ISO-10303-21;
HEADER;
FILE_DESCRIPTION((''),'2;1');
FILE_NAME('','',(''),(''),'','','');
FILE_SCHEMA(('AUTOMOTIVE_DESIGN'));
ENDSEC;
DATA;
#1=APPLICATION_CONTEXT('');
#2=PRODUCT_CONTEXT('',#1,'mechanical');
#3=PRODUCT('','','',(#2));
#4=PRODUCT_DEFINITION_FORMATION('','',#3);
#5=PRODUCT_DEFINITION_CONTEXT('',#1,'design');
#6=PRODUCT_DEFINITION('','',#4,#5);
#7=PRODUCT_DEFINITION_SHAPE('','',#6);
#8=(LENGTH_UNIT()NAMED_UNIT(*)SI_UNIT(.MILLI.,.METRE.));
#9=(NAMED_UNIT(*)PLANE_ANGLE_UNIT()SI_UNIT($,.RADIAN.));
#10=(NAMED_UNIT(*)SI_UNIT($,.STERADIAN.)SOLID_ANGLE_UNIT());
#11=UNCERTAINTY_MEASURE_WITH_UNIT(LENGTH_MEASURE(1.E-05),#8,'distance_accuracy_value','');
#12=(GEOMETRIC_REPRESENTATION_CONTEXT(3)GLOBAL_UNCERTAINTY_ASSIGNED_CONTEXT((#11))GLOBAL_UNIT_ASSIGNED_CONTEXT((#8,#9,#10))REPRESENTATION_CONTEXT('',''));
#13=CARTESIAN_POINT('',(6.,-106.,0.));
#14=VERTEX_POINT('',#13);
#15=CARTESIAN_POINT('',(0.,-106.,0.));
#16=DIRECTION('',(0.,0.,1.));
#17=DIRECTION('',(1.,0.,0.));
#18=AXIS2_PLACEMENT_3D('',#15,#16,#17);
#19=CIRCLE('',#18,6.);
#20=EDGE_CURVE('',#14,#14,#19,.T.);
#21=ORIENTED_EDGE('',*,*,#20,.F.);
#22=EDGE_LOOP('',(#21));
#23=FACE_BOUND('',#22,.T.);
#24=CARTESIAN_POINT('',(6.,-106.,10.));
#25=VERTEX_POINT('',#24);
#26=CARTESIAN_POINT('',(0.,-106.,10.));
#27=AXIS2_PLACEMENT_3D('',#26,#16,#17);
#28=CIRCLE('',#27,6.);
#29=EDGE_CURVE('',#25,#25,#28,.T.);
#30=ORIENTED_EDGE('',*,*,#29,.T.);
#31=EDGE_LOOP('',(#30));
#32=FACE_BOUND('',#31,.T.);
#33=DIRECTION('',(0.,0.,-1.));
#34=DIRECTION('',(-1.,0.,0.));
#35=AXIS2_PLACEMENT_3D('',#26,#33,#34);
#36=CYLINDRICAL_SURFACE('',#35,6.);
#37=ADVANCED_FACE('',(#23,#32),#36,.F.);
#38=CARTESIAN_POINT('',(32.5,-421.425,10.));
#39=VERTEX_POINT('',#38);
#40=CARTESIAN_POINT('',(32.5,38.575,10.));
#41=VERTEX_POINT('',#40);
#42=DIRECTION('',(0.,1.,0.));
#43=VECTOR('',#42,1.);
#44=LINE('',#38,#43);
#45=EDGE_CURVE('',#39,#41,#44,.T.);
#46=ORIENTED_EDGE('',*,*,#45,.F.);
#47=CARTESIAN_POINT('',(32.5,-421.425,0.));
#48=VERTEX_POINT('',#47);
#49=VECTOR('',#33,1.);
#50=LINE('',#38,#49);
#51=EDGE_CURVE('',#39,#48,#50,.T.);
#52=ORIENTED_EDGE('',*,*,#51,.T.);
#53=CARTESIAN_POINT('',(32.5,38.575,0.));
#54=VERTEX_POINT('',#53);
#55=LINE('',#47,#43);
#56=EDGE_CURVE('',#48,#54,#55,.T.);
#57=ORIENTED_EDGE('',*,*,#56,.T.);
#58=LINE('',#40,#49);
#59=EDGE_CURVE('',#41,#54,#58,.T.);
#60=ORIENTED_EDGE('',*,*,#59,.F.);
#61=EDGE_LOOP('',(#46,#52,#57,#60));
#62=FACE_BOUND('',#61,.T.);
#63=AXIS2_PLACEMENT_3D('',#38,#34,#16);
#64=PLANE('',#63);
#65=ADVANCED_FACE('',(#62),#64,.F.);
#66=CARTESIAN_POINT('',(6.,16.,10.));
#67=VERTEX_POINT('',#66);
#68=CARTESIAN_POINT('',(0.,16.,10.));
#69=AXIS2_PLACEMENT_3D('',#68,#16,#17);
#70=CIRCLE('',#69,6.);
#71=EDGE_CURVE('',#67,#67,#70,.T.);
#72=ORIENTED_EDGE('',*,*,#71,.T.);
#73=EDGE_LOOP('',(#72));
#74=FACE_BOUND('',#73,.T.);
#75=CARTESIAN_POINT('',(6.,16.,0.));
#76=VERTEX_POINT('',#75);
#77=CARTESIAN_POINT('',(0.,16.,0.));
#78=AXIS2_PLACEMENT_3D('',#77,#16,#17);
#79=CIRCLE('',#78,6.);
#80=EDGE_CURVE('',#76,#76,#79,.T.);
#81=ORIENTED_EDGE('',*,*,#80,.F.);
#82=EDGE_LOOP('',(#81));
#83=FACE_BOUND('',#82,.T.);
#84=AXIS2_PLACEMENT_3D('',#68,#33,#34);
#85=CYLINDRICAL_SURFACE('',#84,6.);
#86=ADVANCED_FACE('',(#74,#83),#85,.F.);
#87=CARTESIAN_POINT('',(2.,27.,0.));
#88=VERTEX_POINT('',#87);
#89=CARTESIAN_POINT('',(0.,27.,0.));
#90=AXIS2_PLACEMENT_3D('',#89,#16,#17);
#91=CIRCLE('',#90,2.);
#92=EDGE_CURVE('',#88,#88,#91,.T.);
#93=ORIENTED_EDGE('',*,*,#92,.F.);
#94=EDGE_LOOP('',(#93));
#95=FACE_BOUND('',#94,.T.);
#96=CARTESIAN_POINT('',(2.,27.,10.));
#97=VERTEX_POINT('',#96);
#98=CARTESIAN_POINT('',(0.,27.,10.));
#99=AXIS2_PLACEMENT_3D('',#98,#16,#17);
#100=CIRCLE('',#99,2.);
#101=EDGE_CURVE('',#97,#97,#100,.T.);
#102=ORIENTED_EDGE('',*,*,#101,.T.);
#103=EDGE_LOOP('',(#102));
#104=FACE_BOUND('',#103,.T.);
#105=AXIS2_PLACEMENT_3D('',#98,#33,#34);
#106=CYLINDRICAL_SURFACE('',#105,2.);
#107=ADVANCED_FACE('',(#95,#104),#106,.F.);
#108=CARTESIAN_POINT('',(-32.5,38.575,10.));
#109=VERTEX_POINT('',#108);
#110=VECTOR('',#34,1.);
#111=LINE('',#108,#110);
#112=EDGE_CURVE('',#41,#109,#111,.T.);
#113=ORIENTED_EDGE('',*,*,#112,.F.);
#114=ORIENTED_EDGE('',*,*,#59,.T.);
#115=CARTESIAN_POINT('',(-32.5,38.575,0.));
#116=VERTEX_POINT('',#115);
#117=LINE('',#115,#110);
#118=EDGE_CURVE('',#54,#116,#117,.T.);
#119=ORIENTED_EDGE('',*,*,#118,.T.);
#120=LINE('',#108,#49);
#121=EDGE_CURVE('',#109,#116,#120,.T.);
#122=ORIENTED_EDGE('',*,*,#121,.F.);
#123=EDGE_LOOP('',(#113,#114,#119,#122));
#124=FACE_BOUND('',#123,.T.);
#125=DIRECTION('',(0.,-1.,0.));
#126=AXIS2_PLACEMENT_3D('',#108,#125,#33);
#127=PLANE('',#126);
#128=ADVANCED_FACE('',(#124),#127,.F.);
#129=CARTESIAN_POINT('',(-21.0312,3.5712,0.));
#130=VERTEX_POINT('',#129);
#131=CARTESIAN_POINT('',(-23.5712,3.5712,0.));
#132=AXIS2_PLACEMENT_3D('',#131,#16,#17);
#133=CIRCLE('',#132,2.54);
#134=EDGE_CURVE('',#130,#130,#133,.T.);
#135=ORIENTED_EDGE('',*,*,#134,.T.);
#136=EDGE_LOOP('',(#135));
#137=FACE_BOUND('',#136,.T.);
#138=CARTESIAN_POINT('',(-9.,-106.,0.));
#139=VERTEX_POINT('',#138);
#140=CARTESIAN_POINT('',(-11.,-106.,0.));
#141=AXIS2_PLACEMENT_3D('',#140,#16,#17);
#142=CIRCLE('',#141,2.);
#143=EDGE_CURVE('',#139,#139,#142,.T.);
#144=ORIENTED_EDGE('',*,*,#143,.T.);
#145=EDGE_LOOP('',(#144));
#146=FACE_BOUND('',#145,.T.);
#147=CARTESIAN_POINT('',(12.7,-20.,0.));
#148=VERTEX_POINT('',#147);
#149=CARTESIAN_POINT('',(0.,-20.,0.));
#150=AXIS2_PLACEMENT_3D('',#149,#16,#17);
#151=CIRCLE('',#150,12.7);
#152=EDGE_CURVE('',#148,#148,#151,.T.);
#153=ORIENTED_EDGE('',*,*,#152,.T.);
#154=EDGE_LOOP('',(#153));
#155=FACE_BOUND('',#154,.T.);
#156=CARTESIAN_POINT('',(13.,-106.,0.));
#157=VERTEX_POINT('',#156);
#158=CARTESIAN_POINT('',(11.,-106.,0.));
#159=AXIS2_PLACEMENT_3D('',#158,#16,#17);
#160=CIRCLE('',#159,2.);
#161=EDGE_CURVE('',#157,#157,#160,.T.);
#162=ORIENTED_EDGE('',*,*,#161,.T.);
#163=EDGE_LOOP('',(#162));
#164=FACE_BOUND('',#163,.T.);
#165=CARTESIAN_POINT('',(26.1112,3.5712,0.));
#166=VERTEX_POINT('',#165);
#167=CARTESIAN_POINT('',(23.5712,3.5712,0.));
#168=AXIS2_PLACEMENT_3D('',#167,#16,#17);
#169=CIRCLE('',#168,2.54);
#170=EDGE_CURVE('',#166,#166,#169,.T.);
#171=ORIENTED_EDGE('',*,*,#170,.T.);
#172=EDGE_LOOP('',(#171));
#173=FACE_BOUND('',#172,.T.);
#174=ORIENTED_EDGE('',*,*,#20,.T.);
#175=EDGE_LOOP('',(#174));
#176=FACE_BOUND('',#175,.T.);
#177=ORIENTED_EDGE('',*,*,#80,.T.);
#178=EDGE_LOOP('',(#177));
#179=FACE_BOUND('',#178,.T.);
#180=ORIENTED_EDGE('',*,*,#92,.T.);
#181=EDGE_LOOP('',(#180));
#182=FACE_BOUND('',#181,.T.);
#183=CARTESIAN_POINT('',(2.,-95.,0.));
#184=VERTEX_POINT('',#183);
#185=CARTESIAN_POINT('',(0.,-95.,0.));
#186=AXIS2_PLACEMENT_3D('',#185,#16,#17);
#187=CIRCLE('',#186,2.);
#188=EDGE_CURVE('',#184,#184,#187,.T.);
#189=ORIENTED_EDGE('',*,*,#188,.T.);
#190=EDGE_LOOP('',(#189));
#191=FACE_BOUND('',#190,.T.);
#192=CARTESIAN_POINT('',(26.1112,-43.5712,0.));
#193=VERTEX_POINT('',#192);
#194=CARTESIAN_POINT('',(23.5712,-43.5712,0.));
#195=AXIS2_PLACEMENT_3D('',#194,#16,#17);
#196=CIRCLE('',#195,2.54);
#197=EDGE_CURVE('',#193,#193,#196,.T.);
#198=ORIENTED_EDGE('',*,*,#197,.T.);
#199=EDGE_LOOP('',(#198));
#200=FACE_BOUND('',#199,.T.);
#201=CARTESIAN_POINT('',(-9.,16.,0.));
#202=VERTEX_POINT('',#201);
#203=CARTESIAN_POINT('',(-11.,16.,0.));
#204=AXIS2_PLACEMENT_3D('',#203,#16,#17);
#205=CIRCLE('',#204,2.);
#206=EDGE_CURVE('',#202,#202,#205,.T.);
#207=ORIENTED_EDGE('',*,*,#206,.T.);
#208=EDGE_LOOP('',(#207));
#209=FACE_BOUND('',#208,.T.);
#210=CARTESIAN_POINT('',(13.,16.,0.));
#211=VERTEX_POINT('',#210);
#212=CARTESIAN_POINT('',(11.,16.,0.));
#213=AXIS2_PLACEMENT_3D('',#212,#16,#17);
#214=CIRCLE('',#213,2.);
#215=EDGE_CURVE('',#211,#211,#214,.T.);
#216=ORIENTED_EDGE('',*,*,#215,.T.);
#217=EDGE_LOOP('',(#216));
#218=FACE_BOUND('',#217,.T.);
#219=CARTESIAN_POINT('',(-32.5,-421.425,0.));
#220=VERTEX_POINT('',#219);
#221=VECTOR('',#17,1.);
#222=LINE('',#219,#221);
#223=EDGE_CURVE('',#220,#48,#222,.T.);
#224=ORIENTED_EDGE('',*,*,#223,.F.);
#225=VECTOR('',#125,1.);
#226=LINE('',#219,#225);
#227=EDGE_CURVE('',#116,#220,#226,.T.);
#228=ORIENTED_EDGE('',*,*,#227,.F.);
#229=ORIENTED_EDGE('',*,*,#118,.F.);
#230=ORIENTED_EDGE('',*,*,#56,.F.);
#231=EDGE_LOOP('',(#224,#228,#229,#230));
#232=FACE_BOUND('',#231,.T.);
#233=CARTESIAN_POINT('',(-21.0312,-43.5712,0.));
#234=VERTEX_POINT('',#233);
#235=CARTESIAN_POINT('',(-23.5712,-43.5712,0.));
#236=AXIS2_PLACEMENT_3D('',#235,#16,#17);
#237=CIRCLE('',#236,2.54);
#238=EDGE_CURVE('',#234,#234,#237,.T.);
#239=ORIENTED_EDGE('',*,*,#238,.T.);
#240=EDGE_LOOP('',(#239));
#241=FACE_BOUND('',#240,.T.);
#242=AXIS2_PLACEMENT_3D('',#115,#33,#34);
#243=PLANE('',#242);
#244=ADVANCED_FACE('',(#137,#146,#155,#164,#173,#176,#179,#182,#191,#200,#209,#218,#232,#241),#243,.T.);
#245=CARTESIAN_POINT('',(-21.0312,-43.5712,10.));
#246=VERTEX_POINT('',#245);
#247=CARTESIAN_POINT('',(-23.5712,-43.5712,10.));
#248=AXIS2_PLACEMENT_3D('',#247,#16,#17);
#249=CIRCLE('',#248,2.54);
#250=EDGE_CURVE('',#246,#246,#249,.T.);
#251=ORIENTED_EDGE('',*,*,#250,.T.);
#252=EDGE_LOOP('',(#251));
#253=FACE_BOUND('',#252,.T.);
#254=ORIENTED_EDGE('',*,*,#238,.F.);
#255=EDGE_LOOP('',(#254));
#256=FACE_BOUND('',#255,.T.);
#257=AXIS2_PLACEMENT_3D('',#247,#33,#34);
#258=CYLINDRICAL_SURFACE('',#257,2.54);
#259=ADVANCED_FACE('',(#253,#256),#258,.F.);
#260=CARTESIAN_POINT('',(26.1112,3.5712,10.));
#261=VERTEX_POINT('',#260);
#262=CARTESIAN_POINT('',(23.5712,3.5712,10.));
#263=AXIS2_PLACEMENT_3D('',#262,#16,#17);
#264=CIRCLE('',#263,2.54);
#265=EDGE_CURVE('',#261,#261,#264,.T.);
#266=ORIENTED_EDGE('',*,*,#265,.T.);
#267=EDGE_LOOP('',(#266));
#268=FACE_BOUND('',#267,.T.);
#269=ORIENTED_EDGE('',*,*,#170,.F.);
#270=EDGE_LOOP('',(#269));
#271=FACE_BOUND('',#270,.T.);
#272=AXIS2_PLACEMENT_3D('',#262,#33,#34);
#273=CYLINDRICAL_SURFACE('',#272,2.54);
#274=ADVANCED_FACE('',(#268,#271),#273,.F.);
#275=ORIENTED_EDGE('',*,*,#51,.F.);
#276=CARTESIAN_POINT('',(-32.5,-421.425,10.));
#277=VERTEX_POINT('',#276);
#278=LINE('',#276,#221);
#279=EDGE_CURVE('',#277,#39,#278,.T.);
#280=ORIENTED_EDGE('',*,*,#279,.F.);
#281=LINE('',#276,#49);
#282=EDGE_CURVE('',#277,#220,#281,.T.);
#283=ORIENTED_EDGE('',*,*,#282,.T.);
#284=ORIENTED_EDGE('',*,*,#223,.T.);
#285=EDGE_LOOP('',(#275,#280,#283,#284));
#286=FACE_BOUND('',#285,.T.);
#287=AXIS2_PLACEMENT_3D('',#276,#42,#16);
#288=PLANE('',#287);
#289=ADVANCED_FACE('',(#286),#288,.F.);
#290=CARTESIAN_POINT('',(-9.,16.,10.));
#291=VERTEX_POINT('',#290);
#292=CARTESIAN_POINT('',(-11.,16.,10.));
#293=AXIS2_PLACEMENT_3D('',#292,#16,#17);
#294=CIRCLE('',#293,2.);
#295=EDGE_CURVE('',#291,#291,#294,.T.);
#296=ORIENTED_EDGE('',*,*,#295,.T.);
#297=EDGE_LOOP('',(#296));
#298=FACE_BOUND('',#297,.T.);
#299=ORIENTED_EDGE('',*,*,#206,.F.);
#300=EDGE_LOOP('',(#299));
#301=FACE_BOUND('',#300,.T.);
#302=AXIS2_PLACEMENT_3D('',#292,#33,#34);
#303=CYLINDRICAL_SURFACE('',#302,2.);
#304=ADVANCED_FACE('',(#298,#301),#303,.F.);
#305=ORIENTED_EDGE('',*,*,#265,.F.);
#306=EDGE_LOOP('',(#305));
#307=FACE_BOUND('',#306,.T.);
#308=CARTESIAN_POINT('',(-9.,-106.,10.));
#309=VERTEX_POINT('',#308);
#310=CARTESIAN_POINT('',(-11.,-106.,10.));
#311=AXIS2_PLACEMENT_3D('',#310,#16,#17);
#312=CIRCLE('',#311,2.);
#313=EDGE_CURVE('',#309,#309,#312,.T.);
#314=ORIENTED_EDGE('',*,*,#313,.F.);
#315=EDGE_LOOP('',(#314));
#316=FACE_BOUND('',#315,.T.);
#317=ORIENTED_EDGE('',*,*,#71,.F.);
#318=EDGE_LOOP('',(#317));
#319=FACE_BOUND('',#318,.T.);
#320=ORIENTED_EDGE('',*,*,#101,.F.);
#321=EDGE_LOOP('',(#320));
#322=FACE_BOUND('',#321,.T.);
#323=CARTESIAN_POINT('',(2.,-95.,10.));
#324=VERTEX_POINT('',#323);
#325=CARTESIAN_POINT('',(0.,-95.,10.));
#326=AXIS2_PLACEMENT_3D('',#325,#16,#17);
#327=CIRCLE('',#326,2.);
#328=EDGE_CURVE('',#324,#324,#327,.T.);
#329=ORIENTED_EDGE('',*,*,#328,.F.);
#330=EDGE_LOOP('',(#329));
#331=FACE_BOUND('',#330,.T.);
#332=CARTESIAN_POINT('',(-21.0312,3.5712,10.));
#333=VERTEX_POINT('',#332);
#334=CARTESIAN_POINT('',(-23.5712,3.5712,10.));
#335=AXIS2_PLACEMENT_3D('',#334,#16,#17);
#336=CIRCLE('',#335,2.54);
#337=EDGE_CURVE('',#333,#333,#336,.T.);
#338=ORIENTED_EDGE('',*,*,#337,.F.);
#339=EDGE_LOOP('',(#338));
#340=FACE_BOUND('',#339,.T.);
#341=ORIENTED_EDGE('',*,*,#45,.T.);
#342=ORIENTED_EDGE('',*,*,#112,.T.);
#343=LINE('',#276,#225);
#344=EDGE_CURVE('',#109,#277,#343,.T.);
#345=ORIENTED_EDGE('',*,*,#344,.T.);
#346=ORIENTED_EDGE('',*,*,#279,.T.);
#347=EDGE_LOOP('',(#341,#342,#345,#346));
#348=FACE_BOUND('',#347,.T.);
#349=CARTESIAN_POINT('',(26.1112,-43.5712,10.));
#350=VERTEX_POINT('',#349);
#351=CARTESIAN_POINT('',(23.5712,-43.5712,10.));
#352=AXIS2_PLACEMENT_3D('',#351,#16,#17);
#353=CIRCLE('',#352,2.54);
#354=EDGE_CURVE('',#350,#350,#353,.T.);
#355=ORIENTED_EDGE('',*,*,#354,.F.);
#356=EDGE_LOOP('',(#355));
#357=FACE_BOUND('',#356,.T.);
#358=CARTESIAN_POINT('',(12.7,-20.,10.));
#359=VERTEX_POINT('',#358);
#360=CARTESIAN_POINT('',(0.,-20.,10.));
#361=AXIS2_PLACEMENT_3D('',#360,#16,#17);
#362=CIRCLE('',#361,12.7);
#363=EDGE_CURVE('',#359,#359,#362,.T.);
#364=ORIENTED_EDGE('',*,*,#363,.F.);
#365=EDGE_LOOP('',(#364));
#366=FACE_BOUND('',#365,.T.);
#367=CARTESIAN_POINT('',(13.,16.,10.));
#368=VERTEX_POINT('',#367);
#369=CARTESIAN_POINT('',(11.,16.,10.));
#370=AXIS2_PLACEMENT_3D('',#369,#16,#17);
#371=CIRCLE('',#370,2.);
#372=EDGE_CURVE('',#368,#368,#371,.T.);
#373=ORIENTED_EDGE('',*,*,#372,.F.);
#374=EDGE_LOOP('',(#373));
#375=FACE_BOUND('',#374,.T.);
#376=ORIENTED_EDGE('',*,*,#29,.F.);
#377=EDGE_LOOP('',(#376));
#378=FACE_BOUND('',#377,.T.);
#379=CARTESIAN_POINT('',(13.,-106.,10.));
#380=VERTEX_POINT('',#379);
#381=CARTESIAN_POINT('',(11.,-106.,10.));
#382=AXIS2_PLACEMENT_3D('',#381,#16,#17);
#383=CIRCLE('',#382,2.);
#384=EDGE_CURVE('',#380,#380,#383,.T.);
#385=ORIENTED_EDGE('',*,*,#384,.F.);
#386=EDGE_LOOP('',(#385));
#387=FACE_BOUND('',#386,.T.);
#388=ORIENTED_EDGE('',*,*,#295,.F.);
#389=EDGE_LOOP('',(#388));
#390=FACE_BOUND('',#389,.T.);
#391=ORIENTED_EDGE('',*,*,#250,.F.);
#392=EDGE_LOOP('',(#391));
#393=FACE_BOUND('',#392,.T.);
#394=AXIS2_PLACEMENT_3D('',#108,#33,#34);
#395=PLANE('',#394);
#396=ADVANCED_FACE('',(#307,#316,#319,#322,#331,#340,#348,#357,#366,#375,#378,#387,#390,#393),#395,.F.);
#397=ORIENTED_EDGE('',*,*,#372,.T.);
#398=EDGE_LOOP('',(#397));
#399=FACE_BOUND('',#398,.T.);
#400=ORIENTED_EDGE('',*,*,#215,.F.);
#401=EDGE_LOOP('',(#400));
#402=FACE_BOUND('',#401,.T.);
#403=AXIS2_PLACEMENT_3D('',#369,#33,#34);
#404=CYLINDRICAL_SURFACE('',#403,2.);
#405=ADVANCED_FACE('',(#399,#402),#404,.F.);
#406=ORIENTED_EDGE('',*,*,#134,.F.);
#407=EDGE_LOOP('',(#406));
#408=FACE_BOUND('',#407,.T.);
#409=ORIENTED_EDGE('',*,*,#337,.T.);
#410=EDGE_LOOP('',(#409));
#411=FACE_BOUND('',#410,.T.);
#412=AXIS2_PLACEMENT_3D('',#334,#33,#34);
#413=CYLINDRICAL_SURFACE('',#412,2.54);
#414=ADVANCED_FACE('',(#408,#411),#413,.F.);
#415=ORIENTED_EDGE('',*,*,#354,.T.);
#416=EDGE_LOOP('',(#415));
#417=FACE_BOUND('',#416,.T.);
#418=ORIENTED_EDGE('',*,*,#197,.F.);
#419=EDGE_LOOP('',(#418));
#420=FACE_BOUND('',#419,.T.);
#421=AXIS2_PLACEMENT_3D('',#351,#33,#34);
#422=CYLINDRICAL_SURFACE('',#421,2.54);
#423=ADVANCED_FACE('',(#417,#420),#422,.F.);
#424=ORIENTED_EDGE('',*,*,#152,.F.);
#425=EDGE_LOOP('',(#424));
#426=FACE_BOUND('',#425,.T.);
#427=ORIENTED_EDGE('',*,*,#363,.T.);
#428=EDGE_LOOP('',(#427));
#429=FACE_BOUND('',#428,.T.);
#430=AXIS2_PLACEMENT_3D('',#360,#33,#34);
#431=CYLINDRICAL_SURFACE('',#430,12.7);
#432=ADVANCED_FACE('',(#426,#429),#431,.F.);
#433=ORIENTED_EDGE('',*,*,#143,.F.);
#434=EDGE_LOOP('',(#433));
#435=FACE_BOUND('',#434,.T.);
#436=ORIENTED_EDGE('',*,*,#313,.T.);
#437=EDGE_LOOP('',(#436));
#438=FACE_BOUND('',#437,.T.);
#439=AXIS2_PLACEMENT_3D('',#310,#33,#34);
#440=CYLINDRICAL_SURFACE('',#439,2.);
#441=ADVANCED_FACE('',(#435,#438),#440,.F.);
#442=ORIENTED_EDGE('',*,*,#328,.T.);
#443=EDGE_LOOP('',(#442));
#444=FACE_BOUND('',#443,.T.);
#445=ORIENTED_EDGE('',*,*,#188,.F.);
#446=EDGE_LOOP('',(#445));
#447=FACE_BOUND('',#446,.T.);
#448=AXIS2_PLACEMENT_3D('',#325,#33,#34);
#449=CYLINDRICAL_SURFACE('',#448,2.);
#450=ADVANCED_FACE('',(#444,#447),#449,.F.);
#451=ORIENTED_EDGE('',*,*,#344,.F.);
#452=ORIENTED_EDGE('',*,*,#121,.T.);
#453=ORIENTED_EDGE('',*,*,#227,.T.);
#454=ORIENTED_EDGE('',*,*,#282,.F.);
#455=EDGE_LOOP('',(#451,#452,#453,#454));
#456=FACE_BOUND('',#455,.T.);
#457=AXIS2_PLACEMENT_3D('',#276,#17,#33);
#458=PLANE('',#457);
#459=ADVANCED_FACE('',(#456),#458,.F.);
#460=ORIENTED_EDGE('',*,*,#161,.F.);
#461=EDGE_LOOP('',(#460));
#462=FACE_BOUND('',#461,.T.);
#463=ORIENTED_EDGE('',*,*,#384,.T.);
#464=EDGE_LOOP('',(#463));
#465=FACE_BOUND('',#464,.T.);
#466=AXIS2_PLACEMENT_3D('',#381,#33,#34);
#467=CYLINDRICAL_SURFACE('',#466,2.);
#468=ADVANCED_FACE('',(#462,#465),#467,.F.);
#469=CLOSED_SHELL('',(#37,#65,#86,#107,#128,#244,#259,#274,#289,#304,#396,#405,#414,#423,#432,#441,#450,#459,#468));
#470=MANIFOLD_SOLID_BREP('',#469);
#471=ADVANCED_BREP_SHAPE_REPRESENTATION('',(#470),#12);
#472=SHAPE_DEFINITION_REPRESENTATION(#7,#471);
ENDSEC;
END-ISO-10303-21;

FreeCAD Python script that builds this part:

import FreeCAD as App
import Part
import Sketcher

V = App.Vector
Q = App.Units.Quantity


def add_polygon(sketch, points):
    """Adds a closed chain of lines whose ends are joined by coincident constraints."""
    first, n = sketch.GeometryCount, len(points)
    for a, b in zip(points, points[1:] + points[:1]):
        sketch.addGeometry(Part.LineSegment(App.Vector(*a, 0), App.Vector(*b, 0)), False)
    for i in range(n):
        sketch.addConstraint(Sketcher.Constraint("Coincident", first + i, 2, first + (i + 1) % n, 1))

doc = App.newDocument("Part")
body = doc.addObject("PartDesign::Body", "Body")

# Sketch on XY plane
sketch1 = body.newObject("Sketcher::SketchObject", "Sketch")
sketch1.AttachmentSupport = (doc.getObject("XY_Plane"), [""])
sketch1.MapMode = "FlatFace"
add_polygon(sketch1, [(-32.5, 38.6), (-32.5, -421.4), (32.5, -421.4), (32.5, 38.6)])  # lines 0-3
sketch1.addGeometry(Part.Circle(V(-11, -106, 0), V(0, 0, 1), 2), False)  # 4
sketch1.addGeometry(Part.Circle(V(0, -106, 0), V(0, 0, 1), 6), False)  # 5
sketch1.addGeometry(Part.Circle(V(0, -95, 0), V(0, 0, 1), 2), False)  # 6
sketch1.addGeometry(Part.Circle(V(-23.6, -43.6, 0), V(0, 0, 1), 2.5), False)  # 7
sketch1.addGeometry(Part.Circle(V(11, -106, 0), V(0, 0, 1), 2), False)  # 8
sketch1.addGeometry(Part.Circle(V(23.6, -43.6, 0), V(0, 0, 1), 2.5), False)  # 9
sketch1.addGeometry(Part.Circle(V(0, -20, 0), V(0, 0, 1), 12.7), False)  # 10
sketch1.addGeometry(Part.Circle(V(-23.6, 3.6, 0), V(0, 0, 1), 2.5), False)  # 11
sketch1.addGeometry(Part.Circle(V(-11, 16, 0), V(0, 0, 1), 2), False)  # 12
sketch1.addGeometry(Part.Circle(V(0, 16, 0), V(0, 0, 1), 6), False)  # 13
sketch1.addGeometry(Part.Circle(V(0, 27, 0), V(0, 0, 1), 2), False)  # 14
sketch1.addGeometry(Part.Circle(V(11, 16, 0), V(0, 0, 1), 2), False)  # 15
sketch1.addGeometry(Part.Circle(V(23.6, 3.6, 0), V(0, 0, 1), 2.5), False)  # 16
sketch1.addConstraint(Sketcher.Constraint("Vertical", 0))
sketch1.addConstraint(Sketcher.Constraint("Horizontal", 1))
sketch1.addConstraint(Sketcher.Constraint("Vertical", 2))
sketch1.addConstraint(Sketcher.Constraint("Horizontal", 3))
sketch1.addConstraint(Sketcher.Constraint("Equal", 4, 6))
sketch1.addConstraint(Sketcher.Constraint("Equal", 6, 8))
sketch1.addConstraint(Sketcher.Constraint("Equal", 7, 9))
sketch1.addConstraint(Sketcher.Constraint("Equal", 9, 11))
sketch1.addConstraint(Sketcher.Constraint("Equal", 8, 12))
sketch1.addConstraint(Sketcher.Constraint("Equal", 5, 13))
sketch1.addConstraint(Sketcher.Constraint("Equal", 12, 14))
sketch1.addConstraint(Sketcher.Constraint("Equal", 14, 15))
sketch1.addConstraint(Sketcher.Constraint("Equal", 11, 16))
sketch1.addConstraint(Sketcher.Constraint("Symmetric", 4, 3, 8, 3, -2))
sketch1.addConstraint(Sketcher.Constraint("Symmetric", 7, 3, 9, 3, -2))
sketch1.addConstraint(Sketcher.Constraint("Symmetric", 12, 3, 15, 3, -2))
sketch1.addConstraint(Sketcher.Constraint("Symmetric", 11, 3, 16, 3, -2))
sketch1.addConstraint(Sketcher.Constraint("PointOnObject", 5, 3, -2))
sketch1.addConstraint(Sketcher.Constraint("PointOnObject", 6, 3, -2))
sketch1.addConstraint(Sketcher.Constraint("PointOnObject", 10, 3, -2))
sketch1.addConstraint(Sketcher.Constraint("PointOnObject", 13, 3, -2))
sketch1.addConstraint(Sketcher.Constraint("PointOnObject", 14, 3, -2))
sketch1.addConstraint(Sketcher.Constraint("Horizontal", 4, 3, 5, 3))
sketch1.addConstraint(Sketcher.Constraint("Horizontal", 12, 3, 13, 3))
sketch1.addConstraint(Sketcher.Constraint("Vertical", 7, 3, 11, 3))
sketch1.addConstraint(Sketcher.Constraint("Vertical", 4, 3, 12, 3))
sketch1.addConstraint(Sketcher.Constraint("Diameter", 4, Q("4 mm")))
sketch1.addConstraint(Sketcher.Constraint("Diameter", 5, Q("12 mm")))
sketch1.addConstraint(Sketcher.Constraint("Diameter", 10, Q("25.4 mm")))
sketch1.addConstraint(Sketcher.Constraint("Diameter", 7, Q("5.08 mm")))
sketch1.addConstraint(Sketcher.Constraint("DistanceX", 1, 1, 1, 2, Q("65 mm")))
sketch1.addConstraint(Sketcher.Constraint("DistanceY", 0, 2, 0, 1, Q("460 mm")))
sketch1.addConstraint(Sketcher.Constraint("DistanceX", 4, 3, -1, 1, Q("11 mm")))
sketch1.addConstraint(Sketcher.Constraint("DistanceY", 4, 3, -1, 1, Q("106 mm")))
sketch1.addConstraint(Sketcher.Constraint("DistanceY", 6, 3, -1, 1, Q("95 mm")))
sketch1.addConstraint(Sketcher.Constraint("DistanceY", 10, 3, -1, 1, Q("20 mm")))
sketch1.addConstraint(Sketcher.Constraint("DistanceY", -1, 1, 12, 3, Q("16 mm")))
sketch1.addConstraint(Sketcher.Constraint("DistanceY", -1, 1, 14, 3, Q("27 mm")))
sketch1.addConstraint(Sketcher.Constraint("DistanceX", 0, 2, -1, 1, Q("32.5 mm")))
sketch1.addConstraint(Sketcher.Constraint("DistanceY", 0, 2, -1, 1, Q("421.425 mm")))
sketch1.addConstraint(Sketcher.Constraint("DistanceX", 7, 3, -1, 1, Q("23.5712 mm")))
sketch1.addConstraint(Sketcher.Constraint("DistanceY", 7, 3, -1, 1, Q("43.5712 mm")))
sketch1.addConstraint(Sketcher.Constraint("DistanceY", -1, 1, 11, 3, Q("3.5712 mm")))
pad1 = body.newObject("PartDesign::Pad", "Pad")
pad1.Profile = sketch1
pad1.Length = 10

doc.recompute()
